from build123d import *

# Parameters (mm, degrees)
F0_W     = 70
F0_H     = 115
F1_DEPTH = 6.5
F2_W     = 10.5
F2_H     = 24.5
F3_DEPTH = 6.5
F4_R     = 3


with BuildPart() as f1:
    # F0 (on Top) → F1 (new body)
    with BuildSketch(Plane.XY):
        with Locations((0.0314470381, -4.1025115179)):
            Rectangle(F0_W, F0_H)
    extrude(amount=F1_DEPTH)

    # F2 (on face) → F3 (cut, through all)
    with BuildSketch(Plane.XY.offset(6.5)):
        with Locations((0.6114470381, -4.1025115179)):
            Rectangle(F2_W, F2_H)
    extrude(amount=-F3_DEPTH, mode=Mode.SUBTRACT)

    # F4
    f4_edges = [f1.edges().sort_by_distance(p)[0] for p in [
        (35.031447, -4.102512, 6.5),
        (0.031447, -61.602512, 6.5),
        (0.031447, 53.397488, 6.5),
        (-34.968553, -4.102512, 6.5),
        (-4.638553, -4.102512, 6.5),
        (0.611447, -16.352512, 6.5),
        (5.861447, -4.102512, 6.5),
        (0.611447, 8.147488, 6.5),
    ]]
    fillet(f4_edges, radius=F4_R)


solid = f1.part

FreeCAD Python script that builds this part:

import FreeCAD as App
import Part
import Sketcher
Q = App.Units.Quantity


def edges_at(feature, points):
    """Names of the edges that pass closest to the given points."""
    edges = feature.Shape.Edges
    near = lambda p: min(range(len(edges)), key=lambda i: edges[i].distToShape(Part.Vertex(*p))[0])
    return sorted({f"Edge{near(p) + 1}" for p in points})

doc = App.newDocument("Part")
body = doc.addObject("PartDesign::Body", "Body")

# Sketch on XY plane
sketch1 = doc.addObject("Sketcher::SketchObject", "Sketch")
body.addObject(sketch1)
sketch1.AttachmentSupport = (doc.XY_Plane, [""])
sketch1.MapMode = "FlatFace"
sketch1.addGeometry([
    Part.LineSegment(App.Vector(-35, 53, 0), App.Vector(-35, -62, 0)),
    Part.LineSegment(App.Vector(-35, -62, 0), App.Vector(35, -62, 0)),
    Part.LineSegment(App.Vector(35, -62, 0), App.Vector(35, 53, 0)),
    Part.LineSegment(App.Vector(35, 53, 0), App.Vector(-35, 53, 0)),
], False)
sketch1.addConstraint([
    Sketcher.Constraint("Coincident", 0, 2, 1, 1),
    Sketcher.Constraint("Coincident", 1, 2, 2, 1),
    Sketcher.Constraint("Coincident", 2, 2, 3, 1),
    Sketcher.Constraint("Coincident", 3, 2, 0, 1),
    Sketcher.Constraint("Vertical", 0),
    Sketcher.Constraint("Horizontal", 1),
    Sketcher.Constraint("Vertical", 2),
    Sketcher.Constraint("Horizontal", 3),
    Sketcher.Constraint("DistanceX", 1, 1, 1, 2, Q("70 mm")),
    Sketcher.Constraint("DistanceY", 0, 2, 0, 1, Q("115 mm")),
    Sketcher.Constraint("DistanceY", 0, 2, -1, 1, Q("61.602512 mm")),
    Sketcher.Constraint("DistanceX", 0, 2, -1, 1, Q("34.968553 mm")),
])
pad1 = doc.addObject("PartDesign::Pad", "Pad")
body.addObject(pad1)
pad1.Profile = sketch1
pad1.Length = 6.5

# Sketch on XY plane
sketch2 = doc.addObject("Sketcher::SketchObject", "Sketch001")
body.addObject(sketch2)
sketch2.AttachmentSupport = (doc.XY_Plane, [""])
sketch2.MapMode = "FlatFace"
sketch2.AttachmentOffset = App.Placement(App.Vector(0, 0, 6.5), App.Rotation())
sketch2.addGeometry([
    Part.LineSegment(App.Vector(-5, 8, 0), App.Vector(-5, -16, 0)),
    Part.LineSegment(App.Vector(-5, -16, 0), App.Vector(6, -16, 0)),
    Part.LineSegment(App.Vector(6, -16, 0), App.Vector(6, 8, 0)),
    Part.LineSegment(App.Vector(6, 8, 0), App.Vector(-5, 8, 0)),
], False)
sketch2.addConstraint([
    Sketcher.Constraint("Coincident", 0, 2, 1, 1),
    Sketcher.Constraint("Coincident", 1, 2, 2, 1),
    Sketcher.Constraint("Coincident", 2, 2, 3, 1),
    Sketcher.Constraint("Coincident", 3, 2, 0, 1),
    Sketcher.Constraint("Vertical", 0),
    Sketcher.Constraint("Horizontal", 1),
    Sketcher.Constraint("Vertical", 2),
    Sketcher.Constraint("Horizontal", 3),
    Sketcher.Constraint("DistanceX", 1, 1, 1, 2, Q("10.5 mm")),
    Sketcher.Constraint("DistanceY", 0, 2, 0, 1, Q("24.5 mm")),
    Sketcher.Constraint("DistanceY", 0, 2, -1, 1, Q("16.352512 mm")),
    Sketcher.Constraint("DistanceX", 0, 2, -1, 1, Q("4.638553 mm")),
])
pocket1 = doc.addObject("PartDesign::Pocket", "Pocket")
body.addObject(pocket1)
pocket1.Profile = sketch2
pocket1.Type = "ThroughAll"
doc.recompute()

fillet = doc.addObject("PartDesign::Fillet", "Fillet")
body.addObject(fillet)
fillet.Base = (pocket1, edges_at(pocket1, [
    (35.031, -4.103, 6.5),
    (0.031, -61.603, 6.5),
    (0.031, 53.397, 6.5),
    (-34.969, -4.103, 6.5),
    (-4.639, -4.103, 6.5),
    (0.611, -16.353, 6.5),
    (5.861, -4.103, 6.5),
    (0.611, 8.147, 6.5),
]))
fillet.Radius = 3

doc.recompute()
